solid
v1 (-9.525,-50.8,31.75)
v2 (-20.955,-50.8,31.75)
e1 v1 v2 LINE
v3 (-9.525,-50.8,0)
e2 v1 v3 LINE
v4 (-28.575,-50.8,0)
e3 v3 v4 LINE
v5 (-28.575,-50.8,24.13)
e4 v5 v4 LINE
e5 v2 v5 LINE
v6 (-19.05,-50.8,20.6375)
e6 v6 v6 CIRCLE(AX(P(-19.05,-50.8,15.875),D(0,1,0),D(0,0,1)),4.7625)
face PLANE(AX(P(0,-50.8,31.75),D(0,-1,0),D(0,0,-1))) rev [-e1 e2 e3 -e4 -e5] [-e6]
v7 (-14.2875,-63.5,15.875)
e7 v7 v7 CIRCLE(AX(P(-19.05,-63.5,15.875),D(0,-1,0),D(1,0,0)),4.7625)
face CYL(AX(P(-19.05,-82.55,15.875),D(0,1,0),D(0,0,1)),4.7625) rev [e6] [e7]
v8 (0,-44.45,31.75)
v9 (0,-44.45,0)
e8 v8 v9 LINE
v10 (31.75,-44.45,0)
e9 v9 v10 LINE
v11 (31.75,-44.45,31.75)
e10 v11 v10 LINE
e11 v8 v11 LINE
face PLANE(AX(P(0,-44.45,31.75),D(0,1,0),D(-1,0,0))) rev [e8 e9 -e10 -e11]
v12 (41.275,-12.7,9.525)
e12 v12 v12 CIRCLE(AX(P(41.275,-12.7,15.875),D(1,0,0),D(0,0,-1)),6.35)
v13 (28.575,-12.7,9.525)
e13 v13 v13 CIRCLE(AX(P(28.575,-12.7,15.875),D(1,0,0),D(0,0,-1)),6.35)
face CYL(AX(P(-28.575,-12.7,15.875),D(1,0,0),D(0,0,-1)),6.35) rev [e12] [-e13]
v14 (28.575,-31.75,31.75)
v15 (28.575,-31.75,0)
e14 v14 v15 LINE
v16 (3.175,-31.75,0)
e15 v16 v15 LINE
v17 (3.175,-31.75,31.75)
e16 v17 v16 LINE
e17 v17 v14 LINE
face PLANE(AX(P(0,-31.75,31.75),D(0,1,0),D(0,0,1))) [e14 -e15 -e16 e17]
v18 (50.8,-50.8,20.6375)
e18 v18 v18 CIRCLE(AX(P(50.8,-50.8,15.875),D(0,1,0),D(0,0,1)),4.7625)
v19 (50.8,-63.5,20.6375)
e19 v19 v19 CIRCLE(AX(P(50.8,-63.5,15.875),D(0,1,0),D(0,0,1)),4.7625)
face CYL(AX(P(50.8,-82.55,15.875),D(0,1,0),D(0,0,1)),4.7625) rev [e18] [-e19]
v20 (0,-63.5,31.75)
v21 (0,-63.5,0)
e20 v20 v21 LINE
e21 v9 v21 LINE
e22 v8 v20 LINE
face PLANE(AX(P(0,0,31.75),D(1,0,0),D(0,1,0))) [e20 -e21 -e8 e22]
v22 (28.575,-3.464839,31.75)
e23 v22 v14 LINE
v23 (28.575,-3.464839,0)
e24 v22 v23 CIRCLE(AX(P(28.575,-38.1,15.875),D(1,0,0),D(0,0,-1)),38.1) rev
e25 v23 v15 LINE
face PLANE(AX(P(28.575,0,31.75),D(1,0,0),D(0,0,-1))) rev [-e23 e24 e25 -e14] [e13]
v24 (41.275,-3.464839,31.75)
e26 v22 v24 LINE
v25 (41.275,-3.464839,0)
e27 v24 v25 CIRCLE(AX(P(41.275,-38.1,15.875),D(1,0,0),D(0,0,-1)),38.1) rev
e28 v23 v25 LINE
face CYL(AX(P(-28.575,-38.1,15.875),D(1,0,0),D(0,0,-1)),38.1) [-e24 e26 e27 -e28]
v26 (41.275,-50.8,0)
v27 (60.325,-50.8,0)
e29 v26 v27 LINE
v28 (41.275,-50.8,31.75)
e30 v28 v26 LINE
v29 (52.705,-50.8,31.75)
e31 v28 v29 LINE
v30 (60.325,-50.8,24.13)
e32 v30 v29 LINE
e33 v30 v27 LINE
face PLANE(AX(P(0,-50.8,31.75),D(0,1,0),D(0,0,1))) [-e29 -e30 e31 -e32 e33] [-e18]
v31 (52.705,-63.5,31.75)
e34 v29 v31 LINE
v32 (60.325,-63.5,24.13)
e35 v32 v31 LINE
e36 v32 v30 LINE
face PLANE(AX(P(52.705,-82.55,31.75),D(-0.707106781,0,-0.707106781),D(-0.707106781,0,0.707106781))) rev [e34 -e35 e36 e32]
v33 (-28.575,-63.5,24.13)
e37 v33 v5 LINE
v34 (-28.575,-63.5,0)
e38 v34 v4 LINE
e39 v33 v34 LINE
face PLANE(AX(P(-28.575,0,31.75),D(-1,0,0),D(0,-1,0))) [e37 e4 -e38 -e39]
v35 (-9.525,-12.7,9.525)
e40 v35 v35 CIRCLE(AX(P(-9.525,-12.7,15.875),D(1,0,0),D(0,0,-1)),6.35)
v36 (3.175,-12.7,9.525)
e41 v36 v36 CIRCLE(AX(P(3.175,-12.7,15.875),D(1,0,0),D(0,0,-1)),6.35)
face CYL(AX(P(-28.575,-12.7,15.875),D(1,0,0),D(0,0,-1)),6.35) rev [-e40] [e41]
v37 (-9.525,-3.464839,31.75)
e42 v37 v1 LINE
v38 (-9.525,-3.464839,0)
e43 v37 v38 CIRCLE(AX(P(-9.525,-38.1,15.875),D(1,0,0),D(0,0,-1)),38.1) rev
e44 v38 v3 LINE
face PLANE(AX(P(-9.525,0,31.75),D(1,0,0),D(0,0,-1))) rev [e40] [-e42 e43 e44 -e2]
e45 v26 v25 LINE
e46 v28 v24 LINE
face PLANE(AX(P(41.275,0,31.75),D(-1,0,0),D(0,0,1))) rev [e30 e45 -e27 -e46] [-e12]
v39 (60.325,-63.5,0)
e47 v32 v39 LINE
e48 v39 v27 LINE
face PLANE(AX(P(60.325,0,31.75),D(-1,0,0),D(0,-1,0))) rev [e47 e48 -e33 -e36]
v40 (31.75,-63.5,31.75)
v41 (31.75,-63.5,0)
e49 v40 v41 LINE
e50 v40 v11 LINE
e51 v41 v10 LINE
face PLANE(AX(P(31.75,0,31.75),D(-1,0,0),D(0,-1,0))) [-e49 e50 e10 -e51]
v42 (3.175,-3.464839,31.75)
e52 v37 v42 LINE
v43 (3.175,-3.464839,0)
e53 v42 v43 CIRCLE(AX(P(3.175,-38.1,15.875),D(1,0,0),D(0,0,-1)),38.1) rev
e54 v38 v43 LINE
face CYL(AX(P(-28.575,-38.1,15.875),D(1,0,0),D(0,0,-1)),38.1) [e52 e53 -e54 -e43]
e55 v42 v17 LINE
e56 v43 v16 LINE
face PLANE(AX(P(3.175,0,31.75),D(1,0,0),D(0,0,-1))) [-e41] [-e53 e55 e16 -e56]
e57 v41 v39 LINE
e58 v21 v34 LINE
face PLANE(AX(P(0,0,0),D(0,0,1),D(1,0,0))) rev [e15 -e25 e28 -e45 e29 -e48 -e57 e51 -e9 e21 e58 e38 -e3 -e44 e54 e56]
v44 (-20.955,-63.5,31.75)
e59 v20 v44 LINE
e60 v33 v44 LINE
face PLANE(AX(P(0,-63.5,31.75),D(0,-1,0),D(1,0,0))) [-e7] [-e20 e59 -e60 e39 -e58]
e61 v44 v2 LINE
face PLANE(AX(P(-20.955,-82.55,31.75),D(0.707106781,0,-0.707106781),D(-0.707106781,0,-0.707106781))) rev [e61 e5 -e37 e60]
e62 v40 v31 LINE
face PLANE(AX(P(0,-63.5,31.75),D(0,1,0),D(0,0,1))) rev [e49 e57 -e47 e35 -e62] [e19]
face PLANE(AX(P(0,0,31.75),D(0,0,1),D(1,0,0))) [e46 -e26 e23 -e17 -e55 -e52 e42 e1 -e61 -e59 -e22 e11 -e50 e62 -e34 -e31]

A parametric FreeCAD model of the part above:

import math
import FreeCAD as App
import Part
import Sketcher
from FreeCAD import Vector
Q = App.Units.Quantity


def add_polygon(sketch, points):
    """Adds a closed chain of lines whose ends are joined by coincident constraints."""
    first, n = sketch.GeometryCount, len(points)
    for a, b in zip(points, points[1:] + points[:1]):
        sketch.addGeometry(Part.LineSegment(App.Vector(*a, 0), App.Vector(*b, 0)), False)
    for i in range(n):
        sketch.addConstraint(Sketcher.Constraint("Coincident", first + i, 2, first + (i + 1) % n, 1))

doc = App.newDocument("Part")
body = doc.addObject("PartDesign::Body", "Body")

# Sketch on XY plane
sketch1 = body.newObject("Sketcher::SketchObject", "Sketch")
sketch1.AttachmentSupport = (doc.getObject("XY_Plane"), [""])
sketch1.MapMode = "FlatFace"
add_polygon(sketch1, [(-28.575, -50.8), (-28.575, -63.5), (0, -63.5), (0, -44.45), (31.75, -44.45), (31.75, -63.5), (60.325, -63.5), (60.325, -50.8), (41.275, -50.8), (41.275, 0), (28.575, 0), (28.575, -31.75), (3.175, -31.75), (3.175, 0), (-9.525, 0), (-9.525, -50.8)])  # lines 0-15
sketch1.addConstraint(Sketcher.Constraint("Vertical", 0))
sketch1.addConstraint(Sketcher.Constraint("Horizontal", 1))
sketch1.addConstraint(Sketcher.Constraint("Vertical", 2))
sketch1.addConstraint(Sketcher.Constraint("Horizontal", 3))
sketch1.addConstraint(Sketcher.Constraint("Vertical", 4))
sketch1.addConstraint(Sketcher.Constraint("Horizontal", 5))
sketch1.addConstraint(Sketcher.Constraint("Vertical", 6))
sketch1.addConstraint(Sketcher.Constraint("Horizontal", 7))
sketch1.addConstraint(Sketcher.Constraint("Vertical", 8))
sketch1.addConstraint(Sketcher.Constraint("Horizontal", 9))
sketch1.addConstraint(Sketcher.Constraint("Vertical", 10))
sketch1.addConstraint(Sketcher.Constraint("Horizontal", 11))
sketch1.addConstraint(Sketcher.Constraint("Vertical", 12))
sketch1.addConstraint(Sketcher.Constraint("Horizontal", 13))
sketch1.addConstraint(Sketcher.Constraint("Vertical", 14))
sketch1.addConstraint(Sketcher.Constraint("Horizontal", 15))
sketch1.addConstraint(Sketcher.Constraint("PointOnObject", 1, 2, -2))
sketch1.addConstraint(Sketcher.Constraint("PointOnObject", 8, 2, -1))
sketch1.addConstraint(Sketcher.Constraint("PointOnObject", 12, 2, -1))
sketch1.addConstraint(Sketcher.Constraint("Horizontal", 1, 2, 4, 2))
sketch1.addConstraint(Sketcher.Constraint("Horizontal", 7, 2, 14, 2))
sketch1.addConstraint(Sketcher.Constraint("Equal", 1, 5))
sketch1.addConstraint(Sketcher.Constraint("Equal", 9, 13))
sketch1.addConstraint(Sketcher.Constraint("Equal", 7, 15))
sketch1.addConstraint(Sketcher.Constraint("Equal", 13, 0))
sketch1.addConstraint(Sketcher.Constraint("Equal", 15, 2))
sketch1.addConstraint(Sketcher.Constraint("Equal", 3, 10))
sketch1.addConstraint(Sketcher.Constraint("DistanceX", 11, 2, 11, 1, Q("1 in")))
sketch1.addConstraint(Sketcher.Constraint("DistanceY", 8, 1, 8, 2, Q("2 in")))
sketch1.addConstraint(Sketcher.Constraint("DistanceX", 9, 2, 9, 1, Q("0.5 in")))
sketch1.addConstraint(Sketcher.Constraint("DistanceX", 3, 1, 3, 2, Q("1.25 in")))
sketch1.addConstraint(Sketcher.Constraint("DistanceX", 7, 2, 7, 1, Q("0.75 in")))
pad1 = body.newObject("PartDesign::Pad", "Pad")
pad1.Profile = sketch1
pad1.Length = Q("1.25 in")

# Sketch on XZ plane
sketch2 = body.newObject("Sketcher::SketchObject", "Sketch001")
sketch2.AttachmentSupport = (doc.getObject("XZ_Plane"), [""])
sketch2.MapMode = "FlatFace"
sketch2.AttachmentOffset = App.Placement(Vector(0, 0, 2 * 25.4), App.Rotation())
add_polygon(sketch2, [(-20.955, 31.75), (-28.575, 24.13), (-28.575, 31.75)])  # lines 0-2
add_polygon(sketch2, [(60.325, 24.13), (52.705, 31.75), (60.325, 31.75)])  # lines 3-5
sketch2.addConstraint(Sketcher.Constraint("Vertical", 1))
sketch2.addConstraint(Sketcher.Constraint("Horizontal", 2))
sketch2.addConstraint(Sketcher.Constraint("Horizontal", 4))
sketch2.addConstraint(Sketcher.Constraint("Vertical", 5))
sketch2.addConstraint(Sketcher.Constraint("Perpendicular", 0, 3))
sketch2.addConstraint(Sketcher.Constraint("Horizontal", 2, 2, 3, 2))
sketch2.addConstraint(Sketcher.Constraint("Horizontal", 0, 2, 5, 2))
sketch2.addConstraint(Sketcher.Constraint("Equal", 2, 4))
sketch2.addConstraint(Sketcher.Constraint("DistanceX", 2, 1, 2, 2, Q("0.3 in")))
sketch2.addConstraint(Sketcher.Constraint("DistanceX", 2, 2, 3, 2, Q("2.9 in")))
sketch2.addConstraint(Sketcher.Constraint("DistanceY", -1, 1, 0, 2, Q("0.95 in")))
sketch2.addConstraint(Sketcher.Constraint("DistanceX", 0, 2, -1, 1, Q("1.125 in")))
pocket1 = body.newObject("PartDesign::Pocket", "Pocket")
pocket1.Profile = sketch2
pocket1.Length = Q("1.25 in")
pocket1.Reversed = True

# Sketch on XZ plane
sketch3 = body.newObject("Sketcher::SketchObject", "Sketch002")
sketch3.AttachmentSupport = (doc.getObject("XZ_Plane"), [""])
sketch3.MapMode = "FlatFace"
sketch3.AttachmentOffset = App.Placement(Vector(0, 0, 2 * 25.4), App.Rotation())
sketch3.addGeometry(Part.Circle(Vector(-19.05, 15.875, 0), Vector(0, 0, 1), 4.7625), False)
sketch3.addGeometry(Part.Circle(Vector(50.8, 15.875, 0), Vector(0, 0, 1), 4.7625), False)
sketch3.addConstraint(Sketcher.Constraint("Equal", 0, 1))
sketch3.addConstraint(Sketcher.Constraint("Horizontal", 0, 3, 1, 3))
sketch3.addConstraint(Sketcher.Constraint("Diameter", 0, Q("0.375 in")))
sketch3.addConstraint(Sketcher.Constraint("DistanceX", -1, 1, 1, 3, Q("2 in")))
sketch3.addConstraint(Sketcher.Constraint("DistanceX", 0, 3, -1, 1, Q("0.75 in")))
sketch3.addConstraint(Sketcher.Constraint("DistanceY", -1, 1, 0, 3, Q("0.625 in")))
pocket2 = body.newObject("PartDesign::Pocket", "Pocket001")
pocket2.Profile = sketch3
pocket2.Length = Q("1.25 in")
pocket2.Reversed = True

# Sketch on YZ plane
sketch4 = body.newObject("Sketcher::SketchObject", "Sketch003")
sketch4.AttachmentSupport = (doc.getObject("YZ_Plane"), [""])
sketch4.MapMode = "FlatFace"
sketch4.AttachmentOffset = App.Placement(Vector(0, 0, 1.625 * 25.4), App.Rotation())
sketch4.addGeometry(Part.Circle(Vector(-12.7, 15.875, 0), Vector(0, 0, 1), 6.35), False)
sketch4.addGeometry(Part.LineSegment(Vector(0, 0, 0), Vector(0, 15.875, 0)), False)
sketch4.addGeometry(Part.ArcOfCircle(Part.Circle(Vector(-38.1, 15.875, 0), Vector(0, 0, 1), 38.1), math.radians(-24.624318), math.radians(0)), False)
sketch4.addGeometry(Part.LineSegment(Vector(-3.464839, 0, 0), Vector(0, 0, 0)), False)
sketch4.addGeometry(Part.LineSegment(Vector(0, 15.875, 0), Vector(0, 31.75, 0)), False)
sketch4.addGeometry(Part.LineSegment(Vector(0, 31.75, 0), Vector(-3.464839, 31.75, 0)), False)
sketch4.addGeometry(Part.ArcOfCircle(Part.Circle(Vector(-38.1, 15.875, 0), Vector(0, 0, 1), 38.1), math.radians(0), math.radians(24.624318)), False)
sketch4.addConstraint(Sketcher.Constraint("Tangent", 1, 2, 2, 2))
sketch4.addConstraint(Sketcher.Constraint("Coincident", 2, 1, 3, 1))
sketch4.addConstraint(Sketcher.Constraint("Coincident", 3, 2, 1, 1))
sketch4.addConstraint(Sketcher.Constraint("Coincident", 4, 2, 5, 1))
sketch4.addConstraint(Sketcher.Constraint("Coincident", 5, 2, 6, 2))
sketch4.addConstraint(Sketcher.Constraint("Tangent", 6, 1, 4, 1))
sketch4.addConstraint(Sketcher.Constraint("Vertical", 1))
sketch4.addConstraint(Sketcher.Constraint("Horizontal", 3))
sketch4.addConstraint(Sketcher.Constraint("Vertical", 4))
sketch4.addConstraint(Sketcher.Constraint("Horizontal", 5))
sketch4.addConstraint(Sketcher.Constraint("Coincident", 3, 2, -1, 1))
sketch4.addConstraint(Sketcher.Constraint("Coincident", 6, 3, 2, 3))
sketch4.addConstraint(Sketcher.Constraint("Equal", 2, 6))
sketch4.addConstraint(Sketcher.Constraint("Horizontal", 0, 3, 2, 3))
sketch4.addConstraint(Sketcher.Constraint("Vertical", 2, 1, 5, 2))
sketch4.addConstraint(Sketcher.Constraint("Diameter", 0, Q("0.5 in")))
sketch4.addConstraint(Sketcher.Constraint("Radius", 2, Q("1.5 in")))
sketch4.addConstraint(Sketcher.Constraint("DistanceX", 2, 3, 0, 3, Q("1 in")))
sketch4.addConstraint(Sketcher.Constraint("DistanceY", 1, 1, 1, 2, Q("0.625 in")))
pocket3 = body.newObject("PartDesign::Pocket", "Pocket002")
pocket3.Profile = sketch4
pocket3.Type = "ThroughAll"

doc.recompute()
